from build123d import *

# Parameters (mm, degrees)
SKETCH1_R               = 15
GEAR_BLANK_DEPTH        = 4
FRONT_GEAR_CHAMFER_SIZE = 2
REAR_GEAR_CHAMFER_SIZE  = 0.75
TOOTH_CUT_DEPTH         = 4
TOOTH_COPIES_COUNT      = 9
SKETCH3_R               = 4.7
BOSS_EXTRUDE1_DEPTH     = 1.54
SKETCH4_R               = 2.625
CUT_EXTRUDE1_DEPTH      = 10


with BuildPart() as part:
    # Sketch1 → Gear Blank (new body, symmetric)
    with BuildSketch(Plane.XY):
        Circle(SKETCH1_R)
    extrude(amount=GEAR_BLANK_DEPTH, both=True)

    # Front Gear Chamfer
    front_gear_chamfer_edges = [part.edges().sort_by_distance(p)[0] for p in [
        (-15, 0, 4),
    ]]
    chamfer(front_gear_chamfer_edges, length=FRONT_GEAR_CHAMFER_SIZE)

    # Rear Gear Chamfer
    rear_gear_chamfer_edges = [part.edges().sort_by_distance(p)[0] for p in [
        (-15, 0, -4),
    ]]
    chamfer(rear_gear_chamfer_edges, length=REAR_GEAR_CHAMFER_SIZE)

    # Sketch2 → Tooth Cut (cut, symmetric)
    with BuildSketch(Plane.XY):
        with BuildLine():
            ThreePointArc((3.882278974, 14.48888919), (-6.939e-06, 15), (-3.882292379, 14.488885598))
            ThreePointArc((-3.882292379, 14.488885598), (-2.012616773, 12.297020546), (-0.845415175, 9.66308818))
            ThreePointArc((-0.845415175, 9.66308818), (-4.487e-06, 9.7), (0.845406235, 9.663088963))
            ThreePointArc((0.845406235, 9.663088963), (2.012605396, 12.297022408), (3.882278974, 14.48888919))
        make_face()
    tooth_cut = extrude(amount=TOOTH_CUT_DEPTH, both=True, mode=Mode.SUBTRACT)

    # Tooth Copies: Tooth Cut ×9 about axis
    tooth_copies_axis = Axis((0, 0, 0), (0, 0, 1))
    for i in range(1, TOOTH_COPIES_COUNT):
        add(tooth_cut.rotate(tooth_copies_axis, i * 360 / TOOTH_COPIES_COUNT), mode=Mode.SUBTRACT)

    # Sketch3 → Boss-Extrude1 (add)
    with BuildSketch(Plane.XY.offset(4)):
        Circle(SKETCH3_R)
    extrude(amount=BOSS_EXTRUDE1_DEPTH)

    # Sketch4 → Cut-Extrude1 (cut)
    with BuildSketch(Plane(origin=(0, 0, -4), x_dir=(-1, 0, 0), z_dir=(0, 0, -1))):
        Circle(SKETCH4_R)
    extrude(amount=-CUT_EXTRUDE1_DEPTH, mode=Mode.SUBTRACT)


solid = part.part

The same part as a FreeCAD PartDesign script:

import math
import FreeCAD as App
import Part
import Sketcher
from FreeCAD import Vector


def edges_at(feature, points):
    """Names of the edges that pass closest to the given points."""
    edges = feature.Shape.Edges
    near = lambda p: min(range(len(edges)), key=lambda i: edges[i].distToShape(Part.Vertex(*p))[0])
    return sorted({f"Edge{near(p) + 1}" for p in points})

doc = App.newDocument("Part")
body = doc.addObject("PartDesign::Body", "Body")

sketch1 = body.newObject("Sketcher::SketchObject", "Sketch")
sketch1.AttachmentSupport = (doc.getObject("XY_Plane"), [""])
sketch1.MapMode = "FlatFace"
sketch1.addGeometry(Part.Circle(Vector(0, 0, 0), Vector(0, 0, 1), 15), False)
sketch1.addConstraint(Sketcher.Constraint("Coincident", 0, 3, -1, 1))
sketch1.addConstraint(Sketcher.Constraint("Diameter", 0, 30.0))
pad1 = body.newObject("PartDesign::Pad", "Pad")
pad1.Profile = sketch1
pad1.Length = 8
pad1.Midplane = True
doc.recompute()

chamfer = body.newObject("PartDesign::Chamfer", "Chamfer")
chamfer.Base = (pad1, edges_at(pad1, [(-15, 0, 4)]))
chamfer.Size = 2
doc.recompute()

chamfer2 = body.newObject("PartDesign::Chamfer", "Chamfer001")
chamfer2.Base = (chamfer, edges_at(chamfer, [(-15, 0, -4)]))
chamfer2.Size = 0.75

sketch2 = body.newObject("Sketcher::SketchObject", "Sketch001")
sketch2.AttachmentSupport = (doc.getObject("XY_Plane"), [""])
sketch2.MapMode = "FlatFace"
sketch2.addGeometry(Part.ArcOfCircle(Part.Circle(Vector(0, 0, 0), Vector(0, 0, 1), 15), math.radians(75), math.radians(105)), False)
sketch2.addGeometry(Part.ArcOfCircle(Part.Circle(Vector(-10.5, 7, 0), Vector(0, 0, 1), 10), math.radians(16), math.radians(49)), False)
sketch2.addGeometry(Part.ArcOfCircle(Part.Circle(Vector(0, 0, 0), Vector(0, 0, 1), 9.7), math.radians(85), math.radians(95)), False)
sketch2.addGeometry(Part.ArcOfCircle(Part.Circle(Vector(10.5, 7, 0), Vector(0, 0, 1), 10), math.radians(131), math.radians(164)), False)
sketch2.addConstraint(Sketcher.Constraint("Coincident", 0, 2, 1, 2))
sketch2.addConstraint(Sketcher.Constraint("Coincident", 1, 1, 2, 2))
sketch2.addConstraint(Sketcher.Constraint("Coincident", 2, 1, 3, 2))
sketch2.addConstraint(Sketcher.Constraint("Coincident", 3, 1, 0, 1))
sketch2.addConstraint(Sketcher.Constraint("Coincident", 0, 3, -1, 1))
sketch2.addConstraint(Sketcher.Constraint("Coincident", 2, 3, -1, 1))
sketch2.addConstraint(Sketcher.Constraint("Equal", 1, 3))
sketch2.addConstraint(Sketcher.Constraint("Horizontal", 1, 1, 2, 1))
sketch2.addConstraint(Sketcher.Constraint("Radius", 0, 15.0))
sketch2.addConstraint(Sketcher.Constraint("Radius", 1, 10.0))
sketch2.addConstraint(Sketcher.Constraint("Radius", 2, 9.7))
sketch2.addConstraint(Sketcher.Constraint("DistanceX", 1, 3, -1, 1, 10.476201))
sketch2.addConstraint(Sketcher.Constraint("DistanceX", 0, 2, 2, 1, 4.727699))
sketch2.addConstraint(Sketcher.Constraint("DistanceY", 2, 1, 3, 1, 4.8258))
pocket1 = body.newObject("PartDesign::Pocket", "Pocket")
pocket1.Profile = sketch2
pocket1.Length = 8
pocket1.Midplane = True
doc.recompute()

polarpattern = body.newObject("PartDesign::PolarPattern", "PolarPattern")
polarpattern.Originals = [pocket1]
polarpattern.Axis = (doc.getObject("Z_Axis"), [""])
polarpattern.Angle = 360
polarpattern.Occurrences = 9
body.Tip = polarpattern

sketch3 = body.newObject("Sketcher::SketchObject", "Sketch002")
sketch3.AttachmentSupport = (doc.getObject("XY_Plane"), [""])
sketch3.MapMode = "FlatFace"
sketch3.AttachmentOffset = App.Placement(Vector(0, 0, 4), App.Rotation())
sketch3.addGeometry(Part.Circle(Vector(0, 0, 0), Vector(0, 0, 1), 4.7), False)
sketch3.addConstraint(Sketcher.Constraint("Coincident", 0, 3, -1, 1))
sketch3.addConstraint(Sketcher.Constraint("Diameter", 0, 9.4))
pad2 = body.newObject("PartDesign::Pad", "Pad001")
pad2.Profile = sketch3
pad2.Length = 1.54

sketch4 = body.newObject("Sketcher::SketchObject", "Sketch003")
sketch4.AttachmentSupport = (doc.getObject("XY_Plane"), [""])
sketch4.MapMode = "FlatFace"
sketch4.AttachmentOffset = App.Placement(Vector(0, 0, -4), App.Rotation())
sketch4.addGeometry(Part.Circle(Vector(0, 0, 0), Vector(0, 0, 1), 2.6), False)
sketch4.addConstraint(Sketcher.Constraint("Coincident", 0, 3, -1, 1))
sketch4.addConstraint(Sketcher.Constraint("Diameter", 0, 5.25))
pocket2 = body.newObject("PartDesign::Pocket", "Pocket001")
pocket2.Profile = sketch4
pocket2.Length = 10
pocket2.Reversed = True

doc.recompute()
